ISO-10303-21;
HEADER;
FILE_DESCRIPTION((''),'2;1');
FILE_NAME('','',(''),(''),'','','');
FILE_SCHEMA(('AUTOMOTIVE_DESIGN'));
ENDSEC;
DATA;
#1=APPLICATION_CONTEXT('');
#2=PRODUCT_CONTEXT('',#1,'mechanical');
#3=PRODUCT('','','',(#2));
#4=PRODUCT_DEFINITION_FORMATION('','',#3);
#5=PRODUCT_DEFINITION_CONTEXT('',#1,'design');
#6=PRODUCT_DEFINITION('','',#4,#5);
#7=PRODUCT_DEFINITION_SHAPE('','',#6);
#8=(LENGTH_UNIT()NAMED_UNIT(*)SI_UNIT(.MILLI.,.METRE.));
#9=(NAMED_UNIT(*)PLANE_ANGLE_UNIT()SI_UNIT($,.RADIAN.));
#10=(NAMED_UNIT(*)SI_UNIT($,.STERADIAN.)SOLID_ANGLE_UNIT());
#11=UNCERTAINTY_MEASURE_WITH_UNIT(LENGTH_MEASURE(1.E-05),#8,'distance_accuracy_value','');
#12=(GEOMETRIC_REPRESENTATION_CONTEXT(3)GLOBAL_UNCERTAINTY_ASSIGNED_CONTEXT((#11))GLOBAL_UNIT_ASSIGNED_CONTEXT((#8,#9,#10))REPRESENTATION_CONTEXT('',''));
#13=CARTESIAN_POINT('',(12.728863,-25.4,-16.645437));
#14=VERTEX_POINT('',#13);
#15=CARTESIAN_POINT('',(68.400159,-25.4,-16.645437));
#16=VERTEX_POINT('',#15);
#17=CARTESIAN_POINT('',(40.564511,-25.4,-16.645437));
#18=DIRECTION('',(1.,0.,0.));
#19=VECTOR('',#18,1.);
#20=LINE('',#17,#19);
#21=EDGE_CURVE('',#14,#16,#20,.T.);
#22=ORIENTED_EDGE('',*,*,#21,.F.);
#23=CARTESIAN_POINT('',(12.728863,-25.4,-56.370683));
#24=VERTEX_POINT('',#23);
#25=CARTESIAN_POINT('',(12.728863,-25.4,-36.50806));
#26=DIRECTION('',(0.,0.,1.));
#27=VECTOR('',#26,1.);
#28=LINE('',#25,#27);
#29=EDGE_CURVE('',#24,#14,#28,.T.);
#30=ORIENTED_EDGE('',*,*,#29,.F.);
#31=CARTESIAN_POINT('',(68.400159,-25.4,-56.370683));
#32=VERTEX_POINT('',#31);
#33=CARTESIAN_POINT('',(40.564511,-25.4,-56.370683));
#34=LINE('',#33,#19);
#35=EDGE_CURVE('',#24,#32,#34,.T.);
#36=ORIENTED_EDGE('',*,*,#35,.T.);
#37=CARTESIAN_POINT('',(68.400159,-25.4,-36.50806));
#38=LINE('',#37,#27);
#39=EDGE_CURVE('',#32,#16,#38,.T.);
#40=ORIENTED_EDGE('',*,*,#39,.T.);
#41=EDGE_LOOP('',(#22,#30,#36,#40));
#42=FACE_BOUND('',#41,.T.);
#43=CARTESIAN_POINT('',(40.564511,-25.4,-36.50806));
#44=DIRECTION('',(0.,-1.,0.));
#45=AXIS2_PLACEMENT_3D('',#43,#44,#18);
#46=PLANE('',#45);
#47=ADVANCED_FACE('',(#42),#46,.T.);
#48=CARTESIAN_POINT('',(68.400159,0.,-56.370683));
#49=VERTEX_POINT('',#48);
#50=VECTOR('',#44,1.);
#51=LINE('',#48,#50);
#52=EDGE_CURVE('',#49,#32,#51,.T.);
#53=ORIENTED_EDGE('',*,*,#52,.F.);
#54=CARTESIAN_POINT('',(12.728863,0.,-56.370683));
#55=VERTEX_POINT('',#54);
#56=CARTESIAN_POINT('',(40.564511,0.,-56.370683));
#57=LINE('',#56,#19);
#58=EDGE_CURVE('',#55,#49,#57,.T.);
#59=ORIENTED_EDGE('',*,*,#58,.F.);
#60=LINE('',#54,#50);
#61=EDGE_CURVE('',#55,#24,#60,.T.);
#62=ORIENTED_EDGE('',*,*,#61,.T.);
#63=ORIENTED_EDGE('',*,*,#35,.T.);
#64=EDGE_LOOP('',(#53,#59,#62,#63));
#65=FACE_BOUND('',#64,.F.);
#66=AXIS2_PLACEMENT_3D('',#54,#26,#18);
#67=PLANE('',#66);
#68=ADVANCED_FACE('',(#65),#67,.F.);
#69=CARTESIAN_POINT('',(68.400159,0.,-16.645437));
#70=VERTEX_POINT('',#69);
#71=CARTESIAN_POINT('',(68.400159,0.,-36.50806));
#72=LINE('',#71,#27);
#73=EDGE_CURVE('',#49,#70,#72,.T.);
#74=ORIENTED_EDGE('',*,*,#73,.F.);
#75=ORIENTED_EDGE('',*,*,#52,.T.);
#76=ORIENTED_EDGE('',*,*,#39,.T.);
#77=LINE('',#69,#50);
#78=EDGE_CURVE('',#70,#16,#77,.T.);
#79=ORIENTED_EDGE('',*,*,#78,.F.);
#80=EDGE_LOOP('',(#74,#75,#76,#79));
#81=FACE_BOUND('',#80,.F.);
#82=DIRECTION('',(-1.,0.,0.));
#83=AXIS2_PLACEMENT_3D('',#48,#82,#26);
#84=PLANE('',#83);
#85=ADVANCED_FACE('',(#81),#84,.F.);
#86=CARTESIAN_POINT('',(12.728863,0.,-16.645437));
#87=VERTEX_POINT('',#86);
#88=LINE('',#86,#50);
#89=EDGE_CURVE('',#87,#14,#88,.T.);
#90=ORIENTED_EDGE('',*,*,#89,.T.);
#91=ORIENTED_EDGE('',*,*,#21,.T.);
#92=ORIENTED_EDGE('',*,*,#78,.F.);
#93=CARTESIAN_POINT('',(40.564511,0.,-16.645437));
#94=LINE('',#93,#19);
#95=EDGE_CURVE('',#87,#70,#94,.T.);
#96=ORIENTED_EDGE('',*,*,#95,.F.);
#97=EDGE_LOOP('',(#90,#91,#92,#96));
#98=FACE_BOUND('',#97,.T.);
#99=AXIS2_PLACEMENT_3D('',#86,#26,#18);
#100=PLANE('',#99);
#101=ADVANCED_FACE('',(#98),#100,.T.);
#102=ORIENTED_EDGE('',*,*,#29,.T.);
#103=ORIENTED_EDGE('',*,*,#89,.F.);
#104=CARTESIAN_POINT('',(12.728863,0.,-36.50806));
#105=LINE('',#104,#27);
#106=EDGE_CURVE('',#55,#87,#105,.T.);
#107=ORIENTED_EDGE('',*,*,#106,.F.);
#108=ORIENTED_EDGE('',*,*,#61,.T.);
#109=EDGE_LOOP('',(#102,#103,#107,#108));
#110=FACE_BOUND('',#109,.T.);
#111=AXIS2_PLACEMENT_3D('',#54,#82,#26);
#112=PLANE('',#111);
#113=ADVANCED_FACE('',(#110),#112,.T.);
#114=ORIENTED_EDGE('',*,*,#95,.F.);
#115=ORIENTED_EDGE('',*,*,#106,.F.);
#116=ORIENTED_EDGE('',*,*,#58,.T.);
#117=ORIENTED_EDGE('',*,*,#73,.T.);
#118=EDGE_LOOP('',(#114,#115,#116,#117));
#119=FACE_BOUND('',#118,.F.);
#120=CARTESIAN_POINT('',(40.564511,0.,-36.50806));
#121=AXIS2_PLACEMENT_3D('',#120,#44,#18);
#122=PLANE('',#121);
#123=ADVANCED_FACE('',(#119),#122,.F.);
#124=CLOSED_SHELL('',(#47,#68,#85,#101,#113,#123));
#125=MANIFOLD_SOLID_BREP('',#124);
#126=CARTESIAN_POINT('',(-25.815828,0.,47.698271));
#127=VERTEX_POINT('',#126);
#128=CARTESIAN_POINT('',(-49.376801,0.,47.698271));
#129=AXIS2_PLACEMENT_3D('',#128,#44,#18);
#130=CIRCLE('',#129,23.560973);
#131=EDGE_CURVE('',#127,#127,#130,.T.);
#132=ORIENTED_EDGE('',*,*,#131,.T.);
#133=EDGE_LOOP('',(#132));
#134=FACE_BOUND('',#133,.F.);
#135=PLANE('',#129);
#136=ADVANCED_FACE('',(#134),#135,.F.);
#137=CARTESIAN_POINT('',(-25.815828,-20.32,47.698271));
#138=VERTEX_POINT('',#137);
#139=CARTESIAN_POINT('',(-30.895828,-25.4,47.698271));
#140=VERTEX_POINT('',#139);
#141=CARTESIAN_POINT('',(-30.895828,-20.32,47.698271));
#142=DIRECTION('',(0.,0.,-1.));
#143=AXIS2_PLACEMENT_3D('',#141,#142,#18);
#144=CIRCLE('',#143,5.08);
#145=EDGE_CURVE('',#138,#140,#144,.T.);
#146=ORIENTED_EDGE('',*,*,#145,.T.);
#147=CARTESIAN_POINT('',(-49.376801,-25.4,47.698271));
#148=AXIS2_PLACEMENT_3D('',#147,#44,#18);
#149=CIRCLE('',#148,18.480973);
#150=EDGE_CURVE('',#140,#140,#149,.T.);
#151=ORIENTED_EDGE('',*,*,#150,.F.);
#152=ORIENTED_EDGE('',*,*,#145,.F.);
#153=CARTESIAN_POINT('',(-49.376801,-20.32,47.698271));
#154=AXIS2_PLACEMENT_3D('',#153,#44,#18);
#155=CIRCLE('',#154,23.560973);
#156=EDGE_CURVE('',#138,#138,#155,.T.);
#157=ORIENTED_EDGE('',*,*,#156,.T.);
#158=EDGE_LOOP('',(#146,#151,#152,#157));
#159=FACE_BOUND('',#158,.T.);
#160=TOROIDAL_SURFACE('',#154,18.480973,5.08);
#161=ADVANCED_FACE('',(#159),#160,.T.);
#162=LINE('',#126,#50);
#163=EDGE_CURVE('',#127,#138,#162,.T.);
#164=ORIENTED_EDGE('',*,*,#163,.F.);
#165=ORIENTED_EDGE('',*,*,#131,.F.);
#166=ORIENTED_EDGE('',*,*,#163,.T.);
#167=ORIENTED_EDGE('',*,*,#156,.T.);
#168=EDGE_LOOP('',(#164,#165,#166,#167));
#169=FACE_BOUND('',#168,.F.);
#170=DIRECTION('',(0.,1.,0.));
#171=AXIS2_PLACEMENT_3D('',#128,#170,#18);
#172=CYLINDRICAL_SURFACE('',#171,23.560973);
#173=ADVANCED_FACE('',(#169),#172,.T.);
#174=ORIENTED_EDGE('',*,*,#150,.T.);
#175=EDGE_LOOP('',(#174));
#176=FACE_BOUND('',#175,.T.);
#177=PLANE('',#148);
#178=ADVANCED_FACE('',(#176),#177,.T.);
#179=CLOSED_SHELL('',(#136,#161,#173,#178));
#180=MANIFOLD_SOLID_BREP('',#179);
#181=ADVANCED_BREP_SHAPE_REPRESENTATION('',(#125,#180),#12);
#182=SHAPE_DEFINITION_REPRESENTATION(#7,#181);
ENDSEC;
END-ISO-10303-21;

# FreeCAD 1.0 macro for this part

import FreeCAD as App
import Part
import Sketcher

V = App.Vector
Q = App.Units.Quantity


def edges_at(feature, points):
    """Names of the edges that pass closest to the given points."""
    edges = feature.Shape.Edges
    near = lambda p: min(range(len(edges)), key=lambda i: edges[i].distToShape(Part.Vertex(*p))[0])
    return sorted({f"Edge{near(p) + 1}" for p in points})


def add_polygon(sketch, points):
    """Adds a closed chain of lines whose ends are joined by coincident constraints."""
    first, n = sketch.GeometryCount, len(points)
    for a, b in zip(points, points[1:] + points[:1]):
        sketch.addGeometry(Part.LineSegment(App.Vector(*a, 0), App.Vector(*b, 0)), False)
    for i in range(n):
        sketch.addConstraint(Sketcher.Constraint("Coincident", first + i, 2, first + (i + 1) % n, 1))

doc = App.newDocument("Part")
body = doc.addObject("PartDesign::Body", "Body")
body.AllowCompound = True

sketch1 = body.newObject("Sketcher::SketchObject", "Sketch")
sketch1.AttachmentSupport = (doc.getObject("XZ_Plane"), [""])
sketch1.MapMode = "FlatFace"
sketch1.addGeometry(Part.Circle(V(-49, 48, 0), V(0, 0, 1), 24), False)
add_polygon(sketch1, [(13, -17), (13, -56), (68, -56), (68, -17)])
sketch1.addConstraint(Sketcher.Constraint("Vertical", 1))
sketch1.addConstraint(Sketcher.Constraint("Horizontal", 2))
sketch1.addConstraint(Sketcher.Constraint("Vertical", 3))
sketch1.addConstraint(Sketcher.Constraint("Horizontal", 4))
sketch1.addConstraint(Sketcher.Constraint("Diameter", 0, 47.121946))
sketch1.addConstraint(Sketcher.Constraint("DistanceX", 0, 3, -1, 1, 49.376801))
sketch1.addConstraint(Sketcher.Constraint("DistanceX", 2, 1, 2, 2, 55.671296))
sketch1.addConstraint(Sketcher.Constraint("DistanceY", 1, 2, 1, 1, 39.725246))
sketch1.addConstraint(Sketcher.Constraint("DistanceY", -1, 1, 0, 3, 47.698271))
sketch1.addConstraint(Sketcher.Constraint("DistanceX", -1, 1, 2, 2, 68.400159))
sketch1.addConstraint(Sketcher.Constraint("DistanceY", 1, 2, -1, 1, 56.370683))
pad1 = body.newObject("PartDesign::Pad", "Pad")
pad1.Profile = sketch1
pad1.Length = Q("1 in")
doc.recompute()

fillet = body.newObject("PartDesign::Fillet", "Fillet")
fillet.Base = (pad1, edges_at(pad1, [(-72.938, -25.4, 47.698)]))
fillet.Radius = Q("0.2 in")

doc.recompute()
